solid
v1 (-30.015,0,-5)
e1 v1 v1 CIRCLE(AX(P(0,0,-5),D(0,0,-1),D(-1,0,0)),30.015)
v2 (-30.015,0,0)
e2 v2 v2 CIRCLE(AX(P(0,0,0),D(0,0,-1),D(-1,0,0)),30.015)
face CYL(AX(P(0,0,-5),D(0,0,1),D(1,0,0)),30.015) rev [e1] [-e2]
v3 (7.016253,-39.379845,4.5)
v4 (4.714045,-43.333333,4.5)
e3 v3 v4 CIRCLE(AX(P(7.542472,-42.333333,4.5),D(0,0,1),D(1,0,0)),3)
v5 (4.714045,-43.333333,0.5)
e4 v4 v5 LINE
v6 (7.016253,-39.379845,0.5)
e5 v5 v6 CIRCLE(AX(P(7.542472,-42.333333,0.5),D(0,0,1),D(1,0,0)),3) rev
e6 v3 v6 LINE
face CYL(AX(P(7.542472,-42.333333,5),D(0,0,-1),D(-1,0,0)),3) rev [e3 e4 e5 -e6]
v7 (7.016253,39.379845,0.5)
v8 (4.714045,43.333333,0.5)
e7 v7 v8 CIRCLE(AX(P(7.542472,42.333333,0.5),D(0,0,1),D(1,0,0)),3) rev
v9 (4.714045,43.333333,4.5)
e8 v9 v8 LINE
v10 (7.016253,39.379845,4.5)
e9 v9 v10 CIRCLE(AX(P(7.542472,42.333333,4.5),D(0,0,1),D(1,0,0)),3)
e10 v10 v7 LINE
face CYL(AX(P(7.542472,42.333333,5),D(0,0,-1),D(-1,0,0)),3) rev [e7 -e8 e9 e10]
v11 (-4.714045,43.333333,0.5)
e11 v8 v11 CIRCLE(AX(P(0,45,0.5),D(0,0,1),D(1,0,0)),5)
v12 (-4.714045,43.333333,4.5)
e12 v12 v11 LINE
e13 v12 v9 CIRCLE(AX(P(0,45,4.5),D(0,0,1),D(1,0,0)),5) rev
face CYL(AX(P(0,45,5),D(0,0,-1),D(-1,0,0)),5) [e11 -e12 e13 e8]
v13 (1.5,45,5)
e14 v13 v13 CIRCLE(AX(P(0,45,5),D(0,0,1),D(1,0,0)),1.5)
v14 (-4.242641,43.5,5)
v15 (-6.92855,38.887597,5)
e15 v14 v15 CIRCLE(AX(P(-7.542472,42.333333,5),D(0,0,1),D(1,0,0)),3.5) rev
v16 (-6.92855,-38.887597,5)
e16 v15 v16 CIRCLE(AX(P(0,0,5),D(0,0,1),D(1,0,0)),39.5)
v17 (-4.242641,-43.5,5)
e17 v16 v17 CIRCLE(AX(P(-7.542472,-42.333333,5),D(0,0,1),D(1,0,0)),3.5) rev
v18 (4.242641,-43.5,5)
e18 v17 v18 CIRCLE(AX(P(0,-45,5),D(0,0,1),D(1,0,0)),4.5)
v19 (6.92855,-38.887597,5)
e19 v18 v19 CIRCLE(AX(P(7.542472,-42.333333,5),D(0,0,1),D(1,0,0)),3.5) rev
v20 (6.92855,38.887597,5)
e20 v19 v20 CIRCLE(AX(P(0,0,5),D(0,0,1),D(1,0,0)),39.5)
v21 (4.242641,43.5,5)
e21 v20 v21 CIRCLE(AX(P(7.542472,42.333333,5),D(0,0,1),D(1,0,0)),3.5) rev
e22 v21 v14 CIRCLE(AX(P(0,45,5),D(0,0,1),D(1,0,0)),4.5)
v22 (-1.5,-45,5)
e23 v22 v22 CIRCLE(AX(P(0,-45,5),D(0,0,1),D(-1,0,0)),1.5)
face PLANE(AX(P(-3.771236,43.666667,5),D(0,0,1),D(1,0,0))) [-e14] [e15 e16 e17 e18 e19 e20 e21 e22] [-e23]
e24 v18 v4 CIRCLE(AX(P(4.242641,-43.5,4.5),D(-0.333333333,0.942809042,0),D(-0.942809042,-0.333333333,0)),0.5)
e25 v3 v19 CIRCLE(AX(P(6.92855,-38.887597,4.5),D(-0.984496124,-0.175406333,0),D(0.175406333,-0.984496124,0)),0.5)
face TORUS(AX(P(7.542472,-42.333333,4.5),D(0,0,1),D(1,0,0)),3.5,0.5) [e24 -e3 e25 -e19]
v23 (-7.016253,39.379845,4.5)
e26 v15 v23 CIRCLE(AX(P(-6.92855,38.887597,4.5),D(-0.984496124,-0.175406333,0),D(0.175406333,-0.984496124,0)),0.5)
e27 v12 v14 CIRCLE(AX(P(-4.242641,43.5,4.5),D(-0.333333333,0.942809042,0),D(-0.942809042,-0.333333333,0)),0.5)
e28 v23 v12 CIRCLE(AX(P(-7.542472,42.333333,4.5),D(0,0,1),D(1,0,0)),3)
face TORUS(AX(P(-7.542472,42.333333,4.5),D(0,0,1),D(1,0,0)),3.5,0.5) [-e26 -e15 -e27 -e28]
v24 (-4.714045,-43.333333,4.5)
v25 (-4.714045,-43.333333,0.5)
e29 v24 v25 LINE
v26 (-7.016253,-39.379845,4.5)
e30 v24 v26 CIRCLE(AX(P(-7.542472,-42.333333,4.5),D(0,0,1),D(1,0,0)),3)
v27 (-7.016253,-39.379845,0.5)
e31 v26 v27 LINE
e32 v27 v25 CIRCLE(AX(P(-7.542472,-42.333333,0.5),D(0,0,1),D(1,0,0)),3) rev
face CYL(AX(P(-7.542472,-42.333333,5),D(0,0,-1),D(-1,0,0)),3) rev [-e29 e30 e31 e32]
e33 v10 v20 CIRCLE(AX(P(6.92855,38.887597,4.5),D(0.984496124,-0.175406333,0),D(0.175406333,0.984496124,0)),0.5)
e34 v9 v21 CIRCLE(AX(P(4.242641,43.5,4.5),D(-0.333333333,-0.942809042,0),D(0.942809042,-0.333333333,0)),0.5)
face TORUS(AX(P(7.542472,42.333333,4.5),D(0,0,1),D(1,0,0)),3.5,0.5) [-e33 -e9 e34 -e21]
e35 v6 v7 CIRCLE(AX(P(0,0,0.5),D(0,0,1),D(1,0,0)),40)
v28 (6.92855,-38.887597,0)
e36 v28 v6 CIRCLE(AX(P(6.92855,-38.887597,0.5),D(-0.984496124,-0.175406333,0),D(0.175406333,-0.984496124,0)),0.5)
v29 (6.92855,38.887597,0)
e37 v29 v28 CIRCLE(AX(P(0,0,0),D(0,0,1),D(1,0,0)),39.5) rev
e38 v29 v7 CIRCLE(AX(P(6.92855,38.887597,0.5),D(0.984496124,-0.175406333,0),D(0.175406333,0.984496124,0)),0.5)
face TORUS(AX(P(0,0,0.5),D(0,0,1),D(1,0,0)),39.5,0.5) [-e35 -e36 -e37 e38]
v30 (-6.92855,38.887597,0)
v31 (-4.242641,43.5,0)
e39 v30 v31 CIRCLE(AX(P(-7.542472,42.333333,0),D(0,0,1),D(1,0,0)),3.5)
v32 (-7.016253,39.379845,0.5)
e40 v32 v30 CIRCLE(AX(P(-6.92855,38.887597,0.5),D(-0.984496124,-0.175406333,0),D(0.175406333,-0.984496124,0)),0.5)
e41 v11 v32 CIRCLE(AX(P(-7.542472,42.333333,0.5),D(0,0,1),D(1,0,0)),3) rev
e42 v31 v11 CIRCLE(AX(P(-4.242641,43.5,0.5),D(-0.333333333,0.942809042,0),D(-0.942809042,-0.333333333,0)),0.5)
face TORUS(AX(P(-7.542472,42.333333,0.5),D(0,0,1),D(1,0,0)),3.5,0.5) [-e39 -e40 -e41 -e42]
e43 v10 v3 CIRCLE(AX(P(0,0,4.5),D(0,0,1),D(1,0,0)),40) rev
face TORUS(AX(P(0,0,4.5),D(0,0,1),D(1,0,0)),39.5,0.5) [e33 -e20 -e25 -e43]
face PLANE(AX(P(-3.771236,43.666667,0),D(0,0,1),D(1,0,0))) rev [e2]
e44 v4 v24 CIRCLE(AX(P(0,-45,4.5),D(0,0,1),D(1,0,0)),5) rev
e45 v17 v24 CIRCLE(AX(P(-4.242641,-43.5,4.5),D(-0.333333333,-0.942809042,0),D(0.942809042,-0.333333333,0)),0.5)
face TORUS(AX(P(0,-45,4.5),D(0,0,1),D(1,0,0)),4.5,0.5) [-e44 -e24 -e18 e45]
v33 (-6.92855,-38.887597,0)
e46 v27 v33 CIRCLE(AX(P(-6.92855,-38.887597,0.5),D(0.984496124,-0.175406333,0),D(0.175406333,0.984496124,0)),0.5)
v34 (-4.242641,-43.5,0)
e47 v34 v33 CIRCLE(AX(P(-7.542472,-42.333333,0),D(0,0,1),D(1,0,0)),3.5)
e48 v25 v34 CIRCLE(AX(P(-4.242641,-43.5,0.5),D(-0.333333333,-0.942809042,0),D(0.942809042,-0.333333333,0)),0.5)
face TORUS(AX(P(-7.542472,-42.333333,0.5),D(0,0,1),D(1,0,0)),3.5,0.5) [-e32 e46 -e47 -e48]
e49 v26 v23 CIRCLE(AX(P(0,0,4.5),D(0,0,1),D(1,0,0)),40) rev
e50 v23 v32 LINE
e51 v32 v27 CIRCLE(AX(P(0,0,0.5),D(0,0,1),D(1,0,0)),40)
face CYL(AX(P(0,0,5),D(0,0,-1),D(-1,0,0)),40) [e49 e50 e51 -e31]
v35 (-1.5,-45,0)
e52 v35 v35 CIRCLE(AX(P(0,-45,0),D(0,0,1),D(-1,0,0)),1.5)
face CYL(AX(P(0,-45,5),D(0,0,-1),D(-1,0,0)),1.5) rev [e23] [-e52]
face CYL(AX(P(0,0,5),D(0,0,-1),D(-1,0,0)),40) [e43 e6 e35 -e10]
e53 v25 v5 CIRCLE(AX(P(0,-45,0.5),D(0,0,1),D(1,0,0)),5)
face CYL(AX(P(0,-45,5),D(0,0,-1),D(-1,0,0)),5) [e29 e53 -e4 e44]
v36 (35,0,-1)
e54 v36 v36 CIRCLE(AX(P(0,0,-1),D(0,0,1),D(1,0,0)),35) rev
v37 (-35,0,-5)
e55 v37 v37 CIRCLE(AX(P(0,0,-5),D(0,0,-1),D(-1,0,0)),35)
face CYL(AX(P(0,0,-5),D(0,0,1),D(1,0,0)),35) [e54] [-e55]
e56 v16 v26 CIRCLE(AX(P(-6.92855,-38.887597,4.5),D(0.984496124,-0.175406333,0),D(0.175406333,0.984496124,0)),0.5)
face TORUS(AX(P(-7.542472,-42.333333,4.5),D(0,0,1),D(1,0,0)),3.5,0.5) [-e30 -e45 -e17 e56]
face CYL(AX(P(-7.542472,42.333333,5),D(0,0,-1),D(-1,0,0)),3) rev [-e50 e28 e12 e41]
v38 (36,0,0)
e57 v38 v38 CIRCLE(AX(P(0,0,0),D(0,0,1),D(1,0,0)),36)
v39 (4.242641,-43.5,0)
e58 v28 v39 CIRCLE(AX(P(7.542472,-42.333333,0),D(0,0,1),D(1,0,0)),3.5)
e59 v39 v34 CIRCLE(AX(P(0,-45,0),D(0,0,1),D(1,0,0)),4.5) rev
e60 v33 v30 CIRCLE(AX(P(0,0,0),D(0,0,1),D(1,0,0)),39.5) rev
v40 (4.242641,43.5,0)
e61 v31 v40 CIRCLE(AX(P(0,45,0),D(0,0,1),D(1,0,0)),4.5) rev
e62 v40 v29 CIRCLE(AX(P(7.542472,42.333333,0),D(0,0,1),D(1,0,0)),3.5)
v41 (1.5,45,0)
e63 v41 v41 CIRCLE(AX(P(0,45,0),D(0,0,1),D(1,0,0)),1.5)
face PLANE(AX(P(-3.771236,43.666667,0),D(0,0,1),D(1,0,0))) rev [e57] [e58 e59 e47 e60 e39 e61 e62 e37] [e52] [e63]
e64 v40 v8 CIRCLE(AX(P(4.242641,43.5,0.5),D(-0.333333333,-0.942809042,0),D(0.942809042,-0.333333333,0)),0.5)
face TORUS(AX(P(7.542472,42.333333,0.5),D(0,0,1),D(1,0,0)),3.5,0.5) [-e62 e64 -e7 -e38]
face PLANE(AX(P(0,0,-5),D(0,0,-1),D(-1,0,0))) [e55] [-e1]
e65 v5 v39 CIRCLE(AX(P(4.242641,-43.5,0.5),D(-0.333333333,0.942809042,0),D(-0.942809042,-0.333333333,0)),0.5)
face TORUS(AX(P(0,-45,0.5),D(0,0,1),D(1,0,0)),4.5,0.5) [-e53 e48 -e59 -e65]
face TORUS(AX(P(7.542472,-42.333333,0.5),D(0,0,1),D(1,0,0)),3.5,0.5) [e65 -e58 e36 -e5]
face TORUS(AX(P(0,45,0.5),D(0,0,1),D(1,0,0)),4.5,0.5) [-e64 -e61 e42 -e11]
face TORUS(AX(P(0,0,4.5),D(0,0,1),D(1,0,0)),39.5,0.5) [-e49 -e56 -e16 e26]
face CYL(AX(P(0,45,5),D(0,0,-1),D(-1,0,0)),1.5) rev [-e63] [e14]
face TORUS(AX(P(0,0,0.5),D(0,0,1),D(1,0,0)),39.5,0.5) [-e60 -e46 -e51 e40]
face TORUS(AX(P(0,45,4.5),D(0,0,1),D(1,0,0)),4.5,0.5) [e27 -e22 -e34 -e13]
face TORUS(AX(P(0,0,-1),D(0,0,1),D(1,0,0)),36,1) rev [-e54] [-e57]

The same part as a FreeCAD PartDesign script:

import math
import FreeCAD as App
import Part
import Sketcher
Q = App.Units.Quantity


def edges_at(feature, points):
    """Names of the edges that pass closest to the given points."""
    edges = feature.Shape.Edges
    near = lambda p: min(range(len(edges)), key=lambda i: edges[i].distToShape(Part.Vertex(*p))[0])
    return sorted({f"Edge{near(p) + 1}" for p in points})

doc = App.newDocument("Part")
body = doc.addObject("PartDesign::Body", "Body")

# Sketch on XY plane
sketch1 = body.newObject("Sketcher::SketchObject", "Sketch")
sketch1.AttachmentSupport = (doc.getObject("XY_Plane"), [""])
sketch1.MapMode = "FlatFace"
sketch1.addGeometry([
    Part.ArcOfCircle(Part.Circle(App.Vector(0, 0, 0), App.Vector(0, 0, 1), 40), math.radians(100), math.radians(260)),  # 0
    Part.ArcOfCircle(Part.Circle(App.Vector(-7.5, -42.3, 0), App.Vector(0, 0, 1), 3), math.radians(-19), math.radians(80)),  # 1
    Part.ArcOfCircle(Part.Circle(App.Vector(0, -45, 0), App.Vector(0, 0, 1), 5), math.radians(161), math.radians(379)),  # 2
    Part.ArcOfCircle(Part.Circle(App.Vector(7.5, -42.3, 0), App.Vector(0, 0, 1), 3), math.radians(100), math.radians(199)),  # 3
    Part.ArcOfCircle(Part.Circle(App.Vector(0, 0, 0), App.Vector(0, 0, 1), 40), math.radians(-80), math.radians(80)),  # 4
    Part.ArcOfCircle(Part.Circle(App.Vector(7.5, 42.3, 0), App.Vector(0, 0, 1), 3), math.radians(161), math.radians(260)),  # 5
    Part.ArcOfCircle(Part.Circle(App.Vector(0, 45, 0), App.Vector(0, 0, 1), 5), math.radians(-19), math.radians(199)),  # 6
    Part.ArcOfCircle(Part.Circle(App.Vector(-7.5, 42.3, 0), App.Vector(0, 0, 1), 3), math.radians(-80), math.radians(19)),  # 7
    Part.Circle(App.Vector(0, -45, 0), App.Vector(0, 0, 1), 1.5),  # 8
    Part.Circle(App.Vector(0, 45, 0), App.Vector(0, 0, 1), 1.5),  # 9
], False)
sketch1.addConstraint([
    Sketcher.Constraint("Tangent", 0, 2, 1, 2),
    Sketcher.Constraint("Tangent", 1, 1, 2, 1),
    Sketcher.Constraint("Tangent", 2, 2, 3, 2),
    Sketcher.Constraint("Tangent", 3, 1, 4, 1),
    Sketcher.Constraint("Tangent", 4, 2, 5, 2),
    Sketcher.Constraint("Tangent", 5, 1, 6, 1),
    Sketcher.Constraint("Tangent", 6, 2, 7, 2),
    Sketcher.Constraint("Tangent", 7, 1, 0, 1),
    Sketcher.Constraint("Coincident", 0, 3, -1, 1),
    Sketcher.Constraint("Coincident", 4, 3, -1, 1),
    Sketcher.Constraint("Coincident", 8, 3, 2, 3),
    Sketcher.Constraint("Coincident", 9, 3, 6, 3),
    Sketcher.Constraint("Equal", 1, 3),
    Sketcher.Constraint("Equal", 0, 4),
    Sketcher.Constraint("Equal", 3, 5),
    Sketcher.Constraint("Equal", 2, 6),
    Sketcher.Constraint("Equal", 5, 7),
    Sketcher.Constraint("Equal", 8, 9),
    Sketcher.Constraint("Symmetric", 2, 3, 6, 3, -1, 1),
    Sketcher.Constraint("PointOnObject", 2, 3, -2),
    Sketcher.Constraint("Diameter", 8, Q("3 mm")),
    Sketcher.Constraint("Radius", 0, Q("40 mm")),
    Sketcher.Constraint("Radius", 1, Q("3 mm")),
    Sketcher.Constraint("Radius", 2, Q("5 mm")),
    Sketcher.Constraint("DistanceY", 2, 3, -1, 1, Q("45 mm")),
])
pad1 = body.newObject("PartDesign::Pad", "Pad")
pad1.Profile = sketch1
pad1.Length = 5

# Sketch on XY plane
sketch2 = body.newObject("Sketcher::SketchObject", "Sketch001")
sketch2.AttachmentSupport = (doc.getObject("XY_Plane"), [""])
sketch2.MapMode = "FlatFace"
sketch2.addGeometry([
    Part.Circle(App.Vector(0, 0, 0), App.Vector(0, 0, 1), 35),
    Part.Circle(App.Vector(0, 0, 0), App.Vector(0, 0, 1), 30),
], False)
sketch2.addConstraint([
    Sketcher.Constraint("Coincident", 0, 3, -1, 1),
    Sketcher.Constraint("Coincident", 1, 3, -1, 1),
    Sketcher.Constraint("Diameter", 0, Q("70 mm")),
    Sketcher.Constraint("Diameter", 1, Q("60.03 mm")),
])
pad2 = body.newObject("PartDesign::Pad", "Pad001")
pad2.Profile = sketch2
pad2.Length = 5
pad2.Reversed = True
doc.recompute()

fillet = body.newObject("PartDesign::Fillet", "Fillet")
fillet.Base = (pad2, edges_at(pad2, [
    (0, -50, 0),
    (-4.95, -40.824, 0),
    (-40, 0, 0),
    (-4.95, 40.824, 0),
    (-4.95, -40.824, 5),
    (0, -50, 5),
    (4.95, -40.824, 5),
    (40, 0, 5),
    (4.95, 40.824, 5),
    (0, 50, 5),
    (-4.95, 40.824, 5),
    (0, 50, 0),
    (-40, 0, 5),
    (4.95, 40.824, 0),
    (40, 0, 0),
    (4.95, -40.824, 0),
]))
fillet.Radius = 0.5
doc.recompute()

fillet2 = body.newObject("PartDesign::Fillet", "Fillet001")
fillet2.Base = (fillet, edges_at(fillet, [(-35, 0, 0)]))
fillet2.Radius = 1

doc.recompute()
